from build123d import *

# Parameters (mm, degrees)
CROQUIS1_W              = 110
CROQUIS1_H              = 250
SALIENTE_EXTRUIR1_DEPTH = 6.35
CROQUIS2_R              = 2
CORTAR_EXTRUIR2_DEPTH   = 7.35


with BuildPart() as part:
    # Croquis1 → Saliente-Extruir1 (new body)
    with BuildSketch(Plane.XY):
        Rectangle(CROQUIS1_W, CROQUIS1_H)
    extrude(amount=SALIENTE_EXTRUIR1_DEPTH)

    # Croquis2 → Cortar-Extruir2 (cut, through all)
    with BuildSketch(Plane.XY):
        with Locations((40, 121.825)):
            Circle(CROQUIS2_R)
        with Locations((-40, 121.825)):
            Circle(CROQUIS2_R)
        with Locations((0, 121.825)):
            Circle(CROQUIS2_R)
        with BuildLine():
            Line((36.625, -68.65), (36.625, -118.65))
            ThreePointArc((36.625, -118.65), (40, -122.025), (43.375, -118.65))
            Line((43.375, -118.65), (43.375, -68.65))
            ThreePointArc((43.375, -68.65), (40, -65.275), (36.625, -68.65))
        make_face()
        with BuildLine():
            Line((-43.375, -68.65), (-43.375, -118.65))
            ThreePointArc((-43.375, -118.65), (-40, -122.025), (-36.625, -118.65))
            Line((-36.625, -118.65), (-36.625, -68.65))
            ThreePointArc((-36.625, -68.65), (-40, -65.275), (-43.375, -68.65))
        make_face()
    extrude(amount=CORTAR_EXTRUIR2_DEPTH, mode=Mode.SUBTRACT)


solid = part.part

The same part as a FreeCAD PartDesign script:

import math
import FreeCAD as App
import Part
import Sketcher

V = App.Vector
Q = App.Units.Quantity

doc = App.newDocument("Part")
body = doc.addObject("PartDesign::Body", "Body")

sketch1 = body.newObject("Sketcher::SketchObject", "Sketch")
sketch1.AttachmentSupport = (doc.getObject("XY_Plane"), [""])
sketch1.MapMode = "FlatFace"
sketch1.addGeometry([
    Part.LineSegment(V(-55, 125, 0), V(-55, -125, 0)),
    Part.LineSegment(V(-55, -125, 0), V(55, -125, 0)),
    Part.LineSegment(V(55, -125, 0), V(55, 125, 0)),
    Part.LineSegment(V(55, 125, 0), V(-55, 125, 0)),
], False)
sketch1.addConstraint([
    Sketcher.Constraint("Coincident", 0, 2, 1, 1),
    Sketcher.Constraint("Coincident", 1, 2, 2, 1),
    Sketcher.Constraint("Coincident", 2, 2, 3, 1),
    Sketcher.Constraint("Coincident", 3, 2, 0, 1),
    Sketcher.Constraint("Vertical", 0),
    Sketcher.Constraint("Horizontal", 1),
    Sketcher.Constraint("Vertical", 2),
    Sketcher.Constraint("Horizontal", 3),
    Sketcher.Constraint("Symmetric", 0, 2, 2, 2, -1, 1),
    Sketcher.Constraint("DistanceX", 1, 1, 1, 2, Q("110 mm")),
    Sketcher.Constraint("DistanceY", 0, 2, 0, 1, Q("250 mm")),
])
pad1 = body.newObject("PartDesign::Pad", "Pad")
pad1.Profile = sketch1
pad1.Length = 6.35

sketch2 = body.newObject("Sketcher::SketchObject", "Sketch001")
sketch2.AttachmentSupport = (doc.getObject("XY_Plane"), [""])
sketch2.MapMode = "FlatFace"
sketch2.addGeometry([
    Part.Circle(V(40, 121.8, 0), V(0, 0, 1), 2),
    Part.Circle(V(-40, 121.8, 0), V(0, 0, 1), 2),
    Part.Circle(V(0, 121.8, 0), V(0, 0, 1), 2),
    Part.LineSegment(V(36.6, -68.7, 0), V(36.6, -118.7, 0)),
    Part.ArcOfCircle(Part.Circle(V(40, -118.7, 0), V(0, 0, 1), 3.4), math.radians(180), math.radians(360)),
    Part.LineSegment(V(43.4, -118.7, 0), V(43.4, -68.7, 0)),
    Part.ArcOfCircle(Part.Circle(V(40, -68.7, 0), V(0, 0, 1), 3.4), math.radians(0), math.radians(180)),
    Part.LineSegment(V(-43.4, -68.7, 0), V(-43.4, -118.7, 0)),
    Part.ArcOfCircle(Part.Circle(V(-40, -118.7, 0), V(0, 0, 1), 3.4), math.radians(180), math.radians(360)),
    Part.LineSegment(V(-36.6, -118.7, 0), V(-36.6, -68.7, 0)),
    Part.ArcOfCircle(Part.Circle(V(-40, -68.7, 0), V(0, 0, 1), 3.4), math.radians(0), math.radians(180)),
], False)
sketch2.addConstraint([
    Sketcher.Constraint("Tangent", 3, 2, 4, 1),
    Sketcher.Constraint("Tangent", 4, 2, 5, 1),
    Sketcher.Constraint("Tangent", 5, 2, 6, 1),
    Sketcher.Constraint("Tangent", 6, 2, 3, 1),
    Sketcher.Constraint("Tangent", 7, 2, 8, 1),
    Sketcher.Constraint("Tangent", 8, 2, 9, 1),
    Sketcher.Constraint("Tangent", 9, 2, 10, 1),
    Sketcher.Constraint("Tangent", 10, 2, 7, 1),
    Sketcher.Constraint("Vertical", 3),
    Sketcher.Constraint("Vertical", 5),
    Sketcher.Constraint("Vertical", 7),
    Sketcher.Constraint("Vertical", 9),
    Sketcher.Constraint("Equal", 0, 1),
    Sketcher.Constraint("Equal", 1, 2),
    Sketcher.Constraint("Equal", 6, 8),
    Sketcher.Constraint("Symmetric", 0, 3, 1, 3, -2),
    Sketcher.Constraint("Symmetric", 4, 3, 8, 3, -2),
    Sketcher.Constraint("PointOnObject", 2, 3, -2),
    Sketcher.Constraint("Horizontal", 1, 3, 2, 3),
    Sketcher.Constraint("Horizontal", 6, 3, 10, 3),
    Sketcher.Constraint("Vertical", 0, 3, 4, 3),
    Sketcher.Constraint("Diameter", 0, Q("4 mm")),
    Sketcher.Constraint("DistanceY", 3, 2, 3, 1, Q("50 mm")),
    Sketcher.Constraint("DistanceX", -1, 1, 0, 3, Q("40 mm")),
    Sketcher.Constraint("Radius", 4, Q("3.375 mm")),
    Sketcher.Constraint("DistanceY", 4, 3, -1, 1, Q("118.65 mm")),
    Sketcher.Constraint("DistanceY", -1, 1, 0, 3, Q("121.825 mm")),
])
pocket1 = body.newObject("PartDesign::Pocket", "Pocket")
pocket1.Profile = sketch2
pocket1.Type = "ThroughAll"
pocket1.Reversed = True

doc.recompute()
